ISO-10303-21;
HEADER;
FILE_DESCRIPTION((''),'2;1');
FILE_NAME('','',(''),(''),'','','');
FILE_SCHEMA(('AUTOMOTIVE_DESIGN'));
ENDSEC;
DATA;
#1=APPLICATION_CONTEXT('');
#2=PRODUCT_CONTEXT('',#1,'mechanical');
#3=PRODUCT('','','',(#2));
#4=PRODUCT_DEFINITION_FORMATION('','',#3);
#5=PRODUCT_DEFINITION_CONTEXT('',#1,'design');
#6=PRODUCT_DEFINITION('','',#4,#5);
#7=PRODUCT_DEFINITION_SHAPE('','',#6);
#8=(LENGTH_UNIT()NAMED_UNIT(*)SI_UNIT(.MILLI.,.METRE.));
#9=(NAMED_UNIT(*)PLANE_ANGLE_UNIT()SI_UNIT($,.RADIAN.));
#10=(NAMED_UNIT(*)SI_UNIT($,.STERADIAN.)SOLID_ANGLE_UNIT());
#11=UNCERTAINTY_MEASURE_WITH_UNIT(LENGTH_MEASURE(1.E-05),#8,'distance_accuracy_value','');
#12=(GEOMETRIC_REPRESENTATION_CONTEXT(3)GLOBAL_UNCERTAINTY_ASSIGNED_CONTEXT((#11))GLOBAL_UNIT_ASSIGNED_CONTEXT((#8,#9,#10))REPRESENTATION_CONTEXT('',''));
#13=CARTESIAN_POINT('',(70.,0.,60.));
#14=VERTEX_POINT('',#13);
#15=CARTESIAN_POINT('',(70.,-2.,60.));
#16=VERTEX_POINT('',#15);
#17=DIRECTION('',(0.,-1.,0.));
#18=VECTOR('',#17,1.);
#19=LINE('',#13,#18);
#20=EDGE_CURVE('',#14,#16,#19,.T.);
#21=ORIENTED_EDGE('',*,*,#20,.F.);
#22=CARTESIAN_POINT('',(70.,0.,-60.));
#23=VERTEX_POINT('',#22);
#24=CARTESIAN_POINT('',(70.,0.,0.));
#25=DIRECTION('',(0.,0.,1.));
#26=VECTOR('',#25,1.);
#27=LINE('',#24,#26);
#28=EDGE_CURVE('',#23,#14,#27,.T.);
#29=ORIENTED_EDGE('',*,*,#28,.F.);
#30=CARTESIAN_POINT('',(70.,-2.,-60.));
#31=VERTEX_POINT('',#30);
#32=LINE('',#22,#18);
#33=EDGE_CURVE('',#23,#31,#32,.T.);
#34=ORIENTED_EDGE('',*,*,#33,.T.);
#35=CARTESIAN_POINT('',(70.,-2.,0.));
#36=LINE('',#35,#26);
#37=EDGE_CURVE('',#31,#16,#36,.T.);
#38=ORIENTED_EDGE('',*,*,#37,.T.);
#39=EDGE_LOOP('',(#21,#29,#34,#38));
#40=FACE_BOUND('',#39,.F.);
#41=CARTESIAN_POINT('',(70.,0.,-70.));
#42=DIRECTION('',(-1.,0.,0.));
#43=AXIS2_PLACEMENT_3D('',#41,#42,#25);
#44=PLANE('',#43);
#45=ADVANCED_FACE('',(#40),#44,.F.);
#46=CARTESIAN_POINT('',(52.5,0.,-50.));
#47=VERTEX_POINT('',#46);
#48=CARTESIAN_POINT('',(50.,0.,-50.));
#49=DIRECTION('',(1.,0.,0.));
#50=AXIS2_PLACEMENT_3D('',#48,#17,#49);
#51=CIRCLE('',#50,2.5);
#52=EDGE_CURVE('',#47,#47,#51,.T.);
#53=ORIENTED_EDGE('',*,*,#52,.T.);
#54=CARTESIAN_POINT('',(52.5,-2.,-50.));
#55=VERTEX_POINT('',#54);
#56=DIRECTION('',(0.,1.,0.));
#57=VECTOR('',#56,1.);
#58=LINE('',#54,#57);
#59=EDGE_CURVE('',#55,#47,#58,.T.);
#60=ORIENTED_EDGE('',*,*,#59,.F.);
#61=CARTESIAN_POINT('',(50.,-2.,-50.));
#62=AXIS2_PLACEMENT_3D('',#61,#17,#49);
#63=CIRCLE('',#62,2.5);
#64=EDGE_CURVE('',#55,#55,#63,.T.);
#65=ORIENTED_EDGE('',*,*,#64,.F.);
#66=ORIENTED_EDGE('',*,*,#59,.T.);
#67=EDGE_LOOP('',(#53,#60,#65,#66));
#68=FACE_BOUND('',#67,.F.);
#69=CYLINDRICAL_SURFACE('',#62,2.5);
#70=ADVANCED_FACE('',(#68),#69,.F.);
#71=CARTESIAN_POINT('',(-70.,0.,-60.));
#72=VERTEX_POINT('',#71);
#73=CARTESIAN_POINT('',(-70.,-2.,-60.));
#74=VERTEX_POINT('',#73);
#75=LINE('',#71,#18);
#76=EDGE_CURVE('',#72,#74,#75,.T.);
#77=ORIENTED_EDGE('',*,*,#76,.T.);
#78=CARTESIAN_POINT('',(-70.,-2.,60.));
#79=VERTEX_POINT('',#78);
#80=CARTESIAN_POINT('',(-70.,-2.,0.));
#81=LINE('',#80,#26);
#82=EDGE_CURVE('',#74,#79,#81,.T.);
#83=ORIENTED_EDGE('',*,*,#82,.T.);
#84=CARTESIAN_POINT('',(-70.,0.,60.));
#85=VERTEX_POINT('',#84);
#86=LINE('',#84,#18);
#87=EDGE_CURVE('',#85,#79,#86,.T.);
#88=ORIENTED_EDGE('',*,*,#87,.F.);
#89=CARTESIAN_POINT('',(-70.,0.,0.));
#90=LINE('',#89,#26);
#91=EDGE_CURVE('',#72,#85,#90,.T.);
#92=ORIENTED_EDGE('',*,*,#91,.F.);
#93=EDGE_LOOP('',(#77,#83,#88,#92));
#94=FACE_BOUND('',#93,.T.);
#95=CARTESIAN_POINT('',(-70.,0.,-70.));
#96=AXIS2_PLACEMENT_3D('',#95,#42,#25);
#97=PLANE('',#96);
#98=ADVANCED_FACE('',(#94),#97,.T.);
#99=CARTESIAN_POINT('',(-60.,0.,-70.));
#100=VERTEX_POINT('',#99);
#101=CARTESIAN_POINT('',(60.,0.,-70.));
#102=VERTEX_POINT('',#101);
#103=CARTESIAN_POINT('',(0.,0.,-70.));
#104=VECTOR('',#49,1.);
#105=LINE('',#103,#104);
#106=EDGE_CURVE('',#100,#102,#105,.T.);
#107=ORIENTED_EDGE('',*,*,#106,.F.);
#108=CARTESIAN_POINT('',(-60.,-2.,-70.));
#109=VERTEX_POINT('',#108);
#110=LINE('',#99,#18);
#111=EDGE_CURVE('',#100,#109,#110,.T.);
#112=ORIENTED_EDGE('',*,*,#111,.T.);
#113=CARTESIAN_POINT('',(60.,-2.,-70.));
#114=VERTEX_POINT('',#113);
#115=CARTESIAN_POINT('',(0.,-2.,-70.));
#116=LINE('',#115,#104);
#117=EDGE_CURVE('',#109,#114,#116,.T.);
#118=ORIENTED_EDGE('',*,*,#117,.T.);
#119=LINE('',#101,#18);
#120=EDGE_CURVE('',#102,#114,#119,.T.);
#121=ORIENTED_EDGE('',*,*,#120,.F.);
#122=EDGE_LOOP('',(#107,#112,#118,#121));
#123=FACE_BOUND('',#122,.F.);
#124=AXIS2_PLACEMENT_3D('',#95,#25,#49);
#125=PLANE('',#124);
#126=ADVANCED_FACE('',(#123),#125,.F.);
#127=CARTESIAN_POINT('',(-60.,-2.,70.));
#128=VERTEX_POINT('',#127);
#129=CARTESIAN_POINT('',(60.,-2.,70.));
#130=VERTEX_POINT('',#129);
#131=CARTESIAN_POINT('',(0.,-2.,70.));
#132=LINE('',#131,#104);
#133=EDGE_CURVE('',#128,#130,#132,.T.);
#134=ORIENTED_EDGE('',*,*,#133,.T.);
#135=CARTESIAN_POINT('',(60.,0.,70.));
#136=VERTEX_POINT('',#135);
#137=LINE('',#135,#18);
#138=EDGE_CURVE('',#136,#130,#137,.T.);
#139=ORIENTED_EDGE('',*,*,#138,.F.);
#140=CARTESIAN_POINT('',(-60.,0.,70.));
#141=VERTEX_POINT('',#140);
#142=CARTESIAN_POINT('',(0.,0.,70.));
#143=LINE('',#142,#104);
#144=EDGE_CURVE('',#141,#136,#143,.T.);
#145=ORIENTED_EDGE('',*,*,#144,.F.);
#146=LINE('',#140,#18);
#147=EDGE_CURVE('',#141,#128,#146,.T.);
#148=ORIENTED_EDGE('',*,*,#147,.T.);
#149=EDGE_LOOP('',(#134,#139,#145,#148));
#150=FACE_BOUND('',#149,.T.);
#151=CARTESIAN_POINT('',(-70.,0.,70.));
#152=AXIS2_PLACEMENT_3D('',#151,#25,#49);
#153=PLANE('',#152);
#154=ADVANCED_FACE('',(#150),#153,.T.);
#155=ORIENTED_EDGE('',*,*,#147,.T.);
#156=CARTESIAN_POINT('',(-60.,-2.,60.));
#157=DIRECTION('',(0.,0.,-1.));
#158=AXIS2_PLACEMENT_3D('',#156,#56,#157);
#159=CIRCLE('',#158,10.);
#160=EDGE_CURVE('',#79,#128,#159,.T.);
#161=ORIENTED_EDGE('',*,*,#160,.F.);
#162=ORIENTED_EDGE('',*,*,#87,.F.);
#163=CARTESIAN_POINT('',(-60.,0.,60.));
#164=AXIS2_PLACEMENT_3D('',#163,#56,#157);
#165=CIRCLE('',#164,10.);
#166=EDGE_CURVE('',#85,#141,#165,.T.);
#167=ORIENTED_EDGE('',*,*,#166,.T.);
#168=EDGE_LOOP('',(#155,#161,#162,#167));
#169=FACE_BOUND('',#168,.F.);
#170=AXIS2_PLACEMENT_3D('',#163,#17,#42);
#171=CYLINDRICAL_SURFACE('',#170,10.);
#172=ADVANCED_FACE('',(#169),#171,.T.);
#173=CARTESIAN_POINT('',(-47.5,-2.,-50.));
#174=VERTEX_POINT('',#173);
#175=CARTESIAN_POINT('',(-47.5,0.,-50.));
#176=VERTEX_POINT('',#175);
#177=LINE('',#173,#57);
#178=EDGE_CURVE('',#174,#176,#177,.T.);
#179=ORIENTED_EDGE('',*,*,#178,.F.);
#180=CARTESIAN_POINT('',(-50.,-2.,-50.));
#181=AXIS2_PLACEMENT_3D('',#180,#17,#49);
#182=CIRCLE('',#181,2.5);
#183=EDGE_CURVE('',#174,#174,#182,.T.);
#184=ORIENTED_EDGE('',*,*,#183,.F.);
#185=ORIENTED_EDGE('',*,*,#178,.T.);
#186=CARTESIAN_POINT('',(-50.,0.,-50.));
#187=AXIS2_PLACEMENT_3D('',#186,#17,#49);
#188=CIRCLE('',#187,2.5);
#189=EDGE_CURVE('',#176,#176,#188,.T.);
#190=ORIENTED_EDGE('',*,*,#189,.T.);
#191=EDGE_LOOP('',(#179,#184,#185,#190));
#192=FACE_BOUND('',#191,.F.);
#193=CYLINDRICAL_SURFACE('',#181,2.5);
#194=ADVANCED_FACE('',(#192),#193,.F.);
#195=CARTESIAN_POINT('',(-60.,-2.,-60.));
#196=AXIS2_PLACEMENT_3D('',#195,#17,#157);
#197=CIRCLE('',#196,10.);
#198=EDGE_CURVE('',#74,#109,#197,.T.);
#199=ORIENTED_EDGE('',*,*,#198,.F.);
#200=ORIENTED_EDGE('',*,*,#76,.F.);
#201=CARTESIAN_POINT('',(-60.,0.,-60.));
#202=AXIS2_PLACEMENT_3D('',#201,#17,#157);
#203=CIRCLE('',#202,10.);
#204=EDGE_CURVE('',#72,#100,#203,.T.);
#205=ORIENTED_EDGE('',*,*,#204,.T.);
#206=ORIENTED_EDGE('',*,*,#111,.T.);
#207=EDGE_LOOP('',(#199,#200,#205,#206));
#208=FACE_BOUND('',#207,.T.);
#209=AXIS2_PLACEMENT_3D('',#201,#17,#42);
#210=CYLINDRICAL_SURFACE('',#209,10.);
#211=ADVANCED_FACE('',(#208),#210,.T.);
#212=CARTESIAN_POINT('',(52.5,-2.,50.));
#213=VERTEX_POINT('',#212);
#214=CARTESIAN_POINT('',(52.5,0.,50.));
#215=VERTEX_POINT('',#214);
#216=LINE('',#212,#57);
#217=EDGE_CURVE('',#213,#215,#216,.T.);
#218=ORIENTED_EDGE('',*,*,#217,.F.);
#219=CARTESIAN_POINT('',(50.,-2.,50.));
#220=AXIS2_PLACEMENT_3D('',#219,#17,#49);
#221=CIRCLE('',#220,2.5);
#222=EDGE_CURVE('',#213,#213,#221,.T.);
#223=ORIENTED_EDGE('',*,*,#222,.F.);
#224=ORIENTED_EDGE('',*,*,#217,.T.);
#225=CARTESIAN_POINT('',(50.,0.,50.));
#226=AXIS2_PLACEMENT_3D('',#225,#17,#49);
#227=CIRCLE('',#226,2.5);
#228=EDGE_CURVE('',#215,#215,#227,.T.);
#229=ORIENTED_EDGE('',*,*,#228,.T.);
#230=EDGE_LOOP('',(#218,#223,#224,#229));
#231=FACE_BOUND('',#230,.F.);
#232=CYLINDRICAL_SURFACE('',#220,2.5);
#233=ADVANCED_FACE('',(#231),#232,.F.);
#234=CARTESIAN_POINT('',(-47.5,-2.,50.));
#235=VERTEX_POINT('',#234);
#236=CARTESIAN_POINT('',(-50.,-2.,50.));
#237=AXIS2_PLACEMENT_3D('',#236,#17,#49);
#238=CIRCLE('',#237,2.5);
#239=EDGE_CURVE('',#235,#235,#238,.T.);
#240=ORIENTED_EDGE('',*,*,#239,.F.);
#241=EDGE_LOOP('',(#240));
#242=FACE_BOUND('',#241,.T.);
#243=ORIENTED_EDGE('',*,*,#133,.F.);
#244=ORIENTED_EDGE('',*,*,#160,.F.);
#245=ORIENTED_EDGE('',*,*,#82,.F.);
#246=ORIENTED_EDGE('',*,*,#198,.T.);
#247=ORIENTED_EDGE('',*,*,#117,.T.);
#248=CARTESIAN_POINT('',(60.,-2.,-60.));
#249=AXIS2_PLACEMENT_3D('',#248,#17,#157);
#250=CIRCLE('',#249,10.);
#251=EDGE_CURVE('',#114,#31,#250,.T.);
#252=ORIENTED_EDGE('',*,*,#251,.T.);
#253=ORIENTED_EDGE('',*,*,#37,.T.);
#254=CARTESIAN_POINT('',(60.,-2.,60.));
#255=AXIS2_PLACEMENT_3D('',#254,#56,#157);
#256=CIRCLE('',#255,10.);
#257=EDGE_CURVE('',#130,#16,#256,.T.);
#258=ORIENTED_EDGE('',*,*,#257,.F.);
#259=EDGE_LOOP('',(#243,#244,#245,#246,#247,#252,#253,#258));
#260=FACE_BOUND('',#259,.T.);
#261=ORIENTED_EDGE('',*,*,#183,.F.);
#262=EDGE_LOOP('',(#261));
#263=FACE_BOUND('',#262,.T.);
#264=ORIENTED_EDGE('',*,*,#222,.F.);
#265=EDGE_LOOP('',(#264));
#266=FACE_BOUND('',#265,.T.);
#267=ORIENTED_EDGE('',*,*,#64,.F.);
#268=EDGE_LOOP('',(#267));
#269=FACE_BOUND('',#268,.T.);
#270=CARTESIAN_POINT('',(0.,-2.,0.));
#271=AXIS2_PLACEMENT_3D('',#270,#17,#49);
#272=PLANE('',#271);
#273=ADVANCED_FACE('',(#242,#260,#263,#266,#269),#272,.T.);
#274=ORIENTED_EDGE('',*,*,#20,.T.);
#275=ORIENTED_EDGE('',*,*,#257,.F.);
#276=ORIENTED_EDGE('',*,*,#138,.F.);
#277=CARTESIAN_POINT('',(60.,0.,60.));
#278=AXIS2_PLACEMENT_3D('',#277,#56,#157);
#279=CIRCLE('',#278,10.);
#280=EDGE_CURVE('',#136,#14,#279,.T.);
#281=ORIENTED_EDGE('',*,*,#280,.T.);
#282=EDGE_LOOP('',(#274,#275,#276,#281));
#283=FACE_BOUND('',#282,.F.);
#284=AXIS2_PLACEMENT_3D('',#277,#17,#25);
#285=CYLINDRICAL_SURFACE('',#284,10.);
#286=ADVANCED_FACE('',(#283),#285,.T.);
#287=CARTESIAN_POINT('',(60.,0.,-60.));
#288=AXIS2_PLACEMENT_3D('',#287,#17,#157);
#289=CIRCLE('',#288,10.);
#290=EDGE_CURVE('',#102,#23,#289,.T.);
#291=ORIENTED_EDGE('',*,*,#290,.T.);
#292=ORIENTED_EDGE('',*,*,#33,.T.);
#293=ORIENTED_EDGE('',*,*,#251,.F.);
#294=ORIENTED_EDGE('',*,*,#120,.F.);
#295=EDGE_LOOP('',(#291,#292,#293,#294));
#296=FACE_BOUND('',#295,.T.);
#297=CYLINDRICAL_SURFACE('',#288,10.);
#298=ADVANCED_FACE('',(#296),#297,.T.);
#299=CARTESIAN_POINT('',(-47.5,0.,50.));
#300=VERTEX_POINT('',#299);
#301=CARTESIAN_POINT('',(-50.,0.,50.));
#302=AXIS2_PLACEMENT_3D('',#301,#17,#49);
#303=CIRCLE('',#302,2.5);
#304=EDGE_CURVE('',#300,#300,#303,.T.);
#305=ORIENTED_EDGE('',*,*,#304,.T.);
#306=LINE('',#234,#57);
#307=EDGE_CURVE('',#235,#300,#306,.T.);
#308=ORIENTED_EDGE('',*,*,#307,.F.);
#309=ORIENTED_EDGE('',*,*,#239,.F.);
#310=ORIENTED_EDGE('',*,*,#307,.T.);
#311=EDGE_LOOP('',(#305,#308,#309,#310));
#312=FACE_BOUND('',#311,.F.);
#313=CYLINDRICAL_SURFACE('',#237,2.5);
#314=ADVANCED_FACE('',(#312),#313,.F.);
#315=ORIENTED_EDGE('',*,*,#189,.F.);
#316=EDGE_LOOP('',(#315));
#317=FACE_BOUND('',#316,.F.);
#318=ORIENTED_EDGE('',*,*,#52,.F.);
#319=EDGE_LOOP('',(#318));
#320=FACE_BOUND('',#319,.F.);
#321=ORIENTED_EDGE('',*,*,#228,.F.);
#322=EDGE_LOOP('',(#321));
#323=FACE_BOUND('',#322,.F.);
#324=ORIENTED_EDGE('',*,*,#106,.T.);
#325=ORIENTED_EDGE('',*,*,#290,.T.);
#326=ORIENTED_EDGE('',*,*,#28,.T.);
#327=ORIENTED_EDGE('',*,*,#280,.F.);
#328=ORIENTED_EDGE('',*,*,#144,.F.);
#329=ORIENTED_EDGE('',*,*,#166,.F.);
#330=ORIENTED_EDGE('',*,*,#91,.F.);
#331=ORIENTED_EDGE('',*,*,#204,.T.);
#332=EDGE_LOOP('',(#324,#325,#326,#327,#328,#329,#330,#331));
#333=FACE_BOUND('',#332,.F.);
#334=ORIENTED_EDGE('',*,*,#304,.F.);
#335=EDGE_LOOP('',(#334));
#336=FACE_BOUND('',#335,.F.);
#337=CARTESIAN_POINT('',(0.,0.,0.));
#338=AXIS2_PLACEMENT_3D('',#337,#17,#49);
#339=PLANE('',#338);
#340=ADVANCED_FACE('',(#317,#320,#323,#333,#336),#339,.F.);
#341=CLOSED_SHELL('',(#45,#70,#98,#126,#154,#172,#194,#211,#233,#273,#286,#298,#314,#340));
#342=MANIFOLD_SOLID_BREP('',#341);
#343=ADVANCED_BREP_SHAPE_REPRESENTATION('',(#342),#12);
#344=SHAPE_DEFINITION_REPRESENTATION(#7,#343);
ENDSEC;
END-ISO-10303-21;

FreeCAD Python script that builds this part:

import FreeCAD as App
import Part
import Sketcher

V = App.Vector


def edges_at(feature, points):
    """Names of the edges that pass closest to the given points."""
    edges = feature.Shape.Edges
    near = lambda p: min(range(len(edges)), key=lambda i: edges[i].distToShape(Part.Vertex(*p))[0])
    return sorted({f"Edge{near(p) + 1}" for p in points})


def add_polygon(sketch, points):
    """Adds a closed chain of lines whose ends are joined by coincident constraints."""
    first, n = sketch.GeometryCount, len(points)
    for a, b in zip(points, points[1:] + points[:1]):
        sketch.addGeometry(Part.LineSegment(App.Vector(*a, 0), App.Vector(*b, 0)), False)
    for i in range(n):
        sketch.addConstraint(Sketcher.Constraint("Coincident", first + i, 2, first + (i + 1) % n, 1))

doc = App.newDocument("Part")
params = doc.addObject("Spreadsheet::Sheet", "Params")
for row, (alias, value) in enumerate([
    ("sketch1_width", "140 mm"),
    ("pad1_length", "2 mm"),
    ("sketch2_diameter", "5 mm"),
    ("pocket1_length", "25 mm"),
    ("fillet_radius", "10 mm"),
], start=1):
    params.set(f"A{row}", alias)
    params.set(f"B{row}", "=" + value)
    params.setAlias(f"B{row}", alias)

body = doc.addObject("PartDesign::Body", "Body")

sketch1 = body.newObject("Sketcher::SketchObject", "Sketch")
sketch1.AttachmentSupport = (doc.getObject("XZ_Plane"), [""])
sketch1.MapMode = "FlatFace"
add_polygon(sketch1, [(-70, 70), (-70, -70), (70, -70), (70, 70)])
sketch1.addConstraint(Sketcher.Constraint("Vertical", 0))
sketch1.addConstraint(Sketcher.Constraint("Horizontal", 1))
sketch1.addConstraint(Sketcher.Constraint("Vertical", 2))
sketch1.addConstraint(Sketcher.Constraint("Horizontal", 3))
sketch1.addConstraint(Sketcher.Constraint("Symmetric", 0, 2, 2, 2, -1, 1))
sketch1.addConstraint(Sketcher.Constraint("Equal", 3, 0))
sketch1.addConstraint(Sketcher.Constraint("DistanceX", 1, 1, 1, 2, 140.0))
sketch1.setExpression("Constraints[10]", "Params.sketch1_width")
pad1 = body.newObject("PartDesign::Pad", "Pad")
pad1.Profile = sketch1
pad1.setExpression("Length", "Params.pad1_length")

sketch2 = body.newObject("Sketcher::SketchObject", "Sketch001")
sketch2.AttachmentSupport = (doc.getObject("XZ_Plane"), [""])
sketch2.MapMode = "FlatFace"
sketch2.AttachmentOffset = App.Placement(V(0, 0, 2), App.Rotation())
sketch2.addGeometry(Part.Circle(V(-50, 50, 0), V(0, 0, 1), 2.5), False)
sketch2.addGeometry(Part.Circle(V(50, 50, 0), V(0, 0, 1), 2.5), False)
sketch2.addGeometry(Part.Circle(V(-50, -50, 0), V(0, 0, 1), 2.5), False)
sketch2.addGeometry(Part.Circle(V(50, -50, 0), V(0, 0, 1), 2.5), False)
sketch2.addConstraint(Sketcher.Constraint("Equal", 0, 1))
sketch2.addConstraint(Sketcher.Constraint("Equal", 1, 2))
sketch2.addConstraint(Sketcher.Constraint("Equal", 2, 3))
sketch2.addConstraint(Sketcher.Constraint("Symmetric", 1, 3, 2, 3, -1, 1))
sketch2.addConstraint(Sketcher.Constraint("Symmetric", 0, 3, 3, 3, -1, 1))
sketch2.addConstraint(Sketcher.Constraint("Symmetric", 0, 3, 1, 3, -2))
sketch2.addConstraint(Sketcher.Constraint("Diameter", 0, 5.0))
sketch2.addConstraint(Sketcher.Constraint("DistanceX", 0, 3, -1, 1, 50.0))
sketch2.addConstraint(Sketcher.Constraint("DistanceY", -1, 1, 0, 3, 50.0))
sketch2.setExpression("Constraints[6]", "Params.sketch2_diameter")
pocket1 = body.newObject("PartDesign::Pocket", "Pocket")
pocket1.Profile = sketch2
pocket1.setExpression("Length", "Params.pocket1_length")
doc.recompute()

fillet = body.newObject("PartDesign::Fillet", "Fillet")
fillet.Base = (pocket1, edges_at(pocket1, [
    (70, -1, 70),
    (70, -1, -70),
    (-70, -1, 70),
    (-70, -1, -70),
]))
fillet.setExpression("Radius", "Params.fillet_radius")

doc.recompute()
